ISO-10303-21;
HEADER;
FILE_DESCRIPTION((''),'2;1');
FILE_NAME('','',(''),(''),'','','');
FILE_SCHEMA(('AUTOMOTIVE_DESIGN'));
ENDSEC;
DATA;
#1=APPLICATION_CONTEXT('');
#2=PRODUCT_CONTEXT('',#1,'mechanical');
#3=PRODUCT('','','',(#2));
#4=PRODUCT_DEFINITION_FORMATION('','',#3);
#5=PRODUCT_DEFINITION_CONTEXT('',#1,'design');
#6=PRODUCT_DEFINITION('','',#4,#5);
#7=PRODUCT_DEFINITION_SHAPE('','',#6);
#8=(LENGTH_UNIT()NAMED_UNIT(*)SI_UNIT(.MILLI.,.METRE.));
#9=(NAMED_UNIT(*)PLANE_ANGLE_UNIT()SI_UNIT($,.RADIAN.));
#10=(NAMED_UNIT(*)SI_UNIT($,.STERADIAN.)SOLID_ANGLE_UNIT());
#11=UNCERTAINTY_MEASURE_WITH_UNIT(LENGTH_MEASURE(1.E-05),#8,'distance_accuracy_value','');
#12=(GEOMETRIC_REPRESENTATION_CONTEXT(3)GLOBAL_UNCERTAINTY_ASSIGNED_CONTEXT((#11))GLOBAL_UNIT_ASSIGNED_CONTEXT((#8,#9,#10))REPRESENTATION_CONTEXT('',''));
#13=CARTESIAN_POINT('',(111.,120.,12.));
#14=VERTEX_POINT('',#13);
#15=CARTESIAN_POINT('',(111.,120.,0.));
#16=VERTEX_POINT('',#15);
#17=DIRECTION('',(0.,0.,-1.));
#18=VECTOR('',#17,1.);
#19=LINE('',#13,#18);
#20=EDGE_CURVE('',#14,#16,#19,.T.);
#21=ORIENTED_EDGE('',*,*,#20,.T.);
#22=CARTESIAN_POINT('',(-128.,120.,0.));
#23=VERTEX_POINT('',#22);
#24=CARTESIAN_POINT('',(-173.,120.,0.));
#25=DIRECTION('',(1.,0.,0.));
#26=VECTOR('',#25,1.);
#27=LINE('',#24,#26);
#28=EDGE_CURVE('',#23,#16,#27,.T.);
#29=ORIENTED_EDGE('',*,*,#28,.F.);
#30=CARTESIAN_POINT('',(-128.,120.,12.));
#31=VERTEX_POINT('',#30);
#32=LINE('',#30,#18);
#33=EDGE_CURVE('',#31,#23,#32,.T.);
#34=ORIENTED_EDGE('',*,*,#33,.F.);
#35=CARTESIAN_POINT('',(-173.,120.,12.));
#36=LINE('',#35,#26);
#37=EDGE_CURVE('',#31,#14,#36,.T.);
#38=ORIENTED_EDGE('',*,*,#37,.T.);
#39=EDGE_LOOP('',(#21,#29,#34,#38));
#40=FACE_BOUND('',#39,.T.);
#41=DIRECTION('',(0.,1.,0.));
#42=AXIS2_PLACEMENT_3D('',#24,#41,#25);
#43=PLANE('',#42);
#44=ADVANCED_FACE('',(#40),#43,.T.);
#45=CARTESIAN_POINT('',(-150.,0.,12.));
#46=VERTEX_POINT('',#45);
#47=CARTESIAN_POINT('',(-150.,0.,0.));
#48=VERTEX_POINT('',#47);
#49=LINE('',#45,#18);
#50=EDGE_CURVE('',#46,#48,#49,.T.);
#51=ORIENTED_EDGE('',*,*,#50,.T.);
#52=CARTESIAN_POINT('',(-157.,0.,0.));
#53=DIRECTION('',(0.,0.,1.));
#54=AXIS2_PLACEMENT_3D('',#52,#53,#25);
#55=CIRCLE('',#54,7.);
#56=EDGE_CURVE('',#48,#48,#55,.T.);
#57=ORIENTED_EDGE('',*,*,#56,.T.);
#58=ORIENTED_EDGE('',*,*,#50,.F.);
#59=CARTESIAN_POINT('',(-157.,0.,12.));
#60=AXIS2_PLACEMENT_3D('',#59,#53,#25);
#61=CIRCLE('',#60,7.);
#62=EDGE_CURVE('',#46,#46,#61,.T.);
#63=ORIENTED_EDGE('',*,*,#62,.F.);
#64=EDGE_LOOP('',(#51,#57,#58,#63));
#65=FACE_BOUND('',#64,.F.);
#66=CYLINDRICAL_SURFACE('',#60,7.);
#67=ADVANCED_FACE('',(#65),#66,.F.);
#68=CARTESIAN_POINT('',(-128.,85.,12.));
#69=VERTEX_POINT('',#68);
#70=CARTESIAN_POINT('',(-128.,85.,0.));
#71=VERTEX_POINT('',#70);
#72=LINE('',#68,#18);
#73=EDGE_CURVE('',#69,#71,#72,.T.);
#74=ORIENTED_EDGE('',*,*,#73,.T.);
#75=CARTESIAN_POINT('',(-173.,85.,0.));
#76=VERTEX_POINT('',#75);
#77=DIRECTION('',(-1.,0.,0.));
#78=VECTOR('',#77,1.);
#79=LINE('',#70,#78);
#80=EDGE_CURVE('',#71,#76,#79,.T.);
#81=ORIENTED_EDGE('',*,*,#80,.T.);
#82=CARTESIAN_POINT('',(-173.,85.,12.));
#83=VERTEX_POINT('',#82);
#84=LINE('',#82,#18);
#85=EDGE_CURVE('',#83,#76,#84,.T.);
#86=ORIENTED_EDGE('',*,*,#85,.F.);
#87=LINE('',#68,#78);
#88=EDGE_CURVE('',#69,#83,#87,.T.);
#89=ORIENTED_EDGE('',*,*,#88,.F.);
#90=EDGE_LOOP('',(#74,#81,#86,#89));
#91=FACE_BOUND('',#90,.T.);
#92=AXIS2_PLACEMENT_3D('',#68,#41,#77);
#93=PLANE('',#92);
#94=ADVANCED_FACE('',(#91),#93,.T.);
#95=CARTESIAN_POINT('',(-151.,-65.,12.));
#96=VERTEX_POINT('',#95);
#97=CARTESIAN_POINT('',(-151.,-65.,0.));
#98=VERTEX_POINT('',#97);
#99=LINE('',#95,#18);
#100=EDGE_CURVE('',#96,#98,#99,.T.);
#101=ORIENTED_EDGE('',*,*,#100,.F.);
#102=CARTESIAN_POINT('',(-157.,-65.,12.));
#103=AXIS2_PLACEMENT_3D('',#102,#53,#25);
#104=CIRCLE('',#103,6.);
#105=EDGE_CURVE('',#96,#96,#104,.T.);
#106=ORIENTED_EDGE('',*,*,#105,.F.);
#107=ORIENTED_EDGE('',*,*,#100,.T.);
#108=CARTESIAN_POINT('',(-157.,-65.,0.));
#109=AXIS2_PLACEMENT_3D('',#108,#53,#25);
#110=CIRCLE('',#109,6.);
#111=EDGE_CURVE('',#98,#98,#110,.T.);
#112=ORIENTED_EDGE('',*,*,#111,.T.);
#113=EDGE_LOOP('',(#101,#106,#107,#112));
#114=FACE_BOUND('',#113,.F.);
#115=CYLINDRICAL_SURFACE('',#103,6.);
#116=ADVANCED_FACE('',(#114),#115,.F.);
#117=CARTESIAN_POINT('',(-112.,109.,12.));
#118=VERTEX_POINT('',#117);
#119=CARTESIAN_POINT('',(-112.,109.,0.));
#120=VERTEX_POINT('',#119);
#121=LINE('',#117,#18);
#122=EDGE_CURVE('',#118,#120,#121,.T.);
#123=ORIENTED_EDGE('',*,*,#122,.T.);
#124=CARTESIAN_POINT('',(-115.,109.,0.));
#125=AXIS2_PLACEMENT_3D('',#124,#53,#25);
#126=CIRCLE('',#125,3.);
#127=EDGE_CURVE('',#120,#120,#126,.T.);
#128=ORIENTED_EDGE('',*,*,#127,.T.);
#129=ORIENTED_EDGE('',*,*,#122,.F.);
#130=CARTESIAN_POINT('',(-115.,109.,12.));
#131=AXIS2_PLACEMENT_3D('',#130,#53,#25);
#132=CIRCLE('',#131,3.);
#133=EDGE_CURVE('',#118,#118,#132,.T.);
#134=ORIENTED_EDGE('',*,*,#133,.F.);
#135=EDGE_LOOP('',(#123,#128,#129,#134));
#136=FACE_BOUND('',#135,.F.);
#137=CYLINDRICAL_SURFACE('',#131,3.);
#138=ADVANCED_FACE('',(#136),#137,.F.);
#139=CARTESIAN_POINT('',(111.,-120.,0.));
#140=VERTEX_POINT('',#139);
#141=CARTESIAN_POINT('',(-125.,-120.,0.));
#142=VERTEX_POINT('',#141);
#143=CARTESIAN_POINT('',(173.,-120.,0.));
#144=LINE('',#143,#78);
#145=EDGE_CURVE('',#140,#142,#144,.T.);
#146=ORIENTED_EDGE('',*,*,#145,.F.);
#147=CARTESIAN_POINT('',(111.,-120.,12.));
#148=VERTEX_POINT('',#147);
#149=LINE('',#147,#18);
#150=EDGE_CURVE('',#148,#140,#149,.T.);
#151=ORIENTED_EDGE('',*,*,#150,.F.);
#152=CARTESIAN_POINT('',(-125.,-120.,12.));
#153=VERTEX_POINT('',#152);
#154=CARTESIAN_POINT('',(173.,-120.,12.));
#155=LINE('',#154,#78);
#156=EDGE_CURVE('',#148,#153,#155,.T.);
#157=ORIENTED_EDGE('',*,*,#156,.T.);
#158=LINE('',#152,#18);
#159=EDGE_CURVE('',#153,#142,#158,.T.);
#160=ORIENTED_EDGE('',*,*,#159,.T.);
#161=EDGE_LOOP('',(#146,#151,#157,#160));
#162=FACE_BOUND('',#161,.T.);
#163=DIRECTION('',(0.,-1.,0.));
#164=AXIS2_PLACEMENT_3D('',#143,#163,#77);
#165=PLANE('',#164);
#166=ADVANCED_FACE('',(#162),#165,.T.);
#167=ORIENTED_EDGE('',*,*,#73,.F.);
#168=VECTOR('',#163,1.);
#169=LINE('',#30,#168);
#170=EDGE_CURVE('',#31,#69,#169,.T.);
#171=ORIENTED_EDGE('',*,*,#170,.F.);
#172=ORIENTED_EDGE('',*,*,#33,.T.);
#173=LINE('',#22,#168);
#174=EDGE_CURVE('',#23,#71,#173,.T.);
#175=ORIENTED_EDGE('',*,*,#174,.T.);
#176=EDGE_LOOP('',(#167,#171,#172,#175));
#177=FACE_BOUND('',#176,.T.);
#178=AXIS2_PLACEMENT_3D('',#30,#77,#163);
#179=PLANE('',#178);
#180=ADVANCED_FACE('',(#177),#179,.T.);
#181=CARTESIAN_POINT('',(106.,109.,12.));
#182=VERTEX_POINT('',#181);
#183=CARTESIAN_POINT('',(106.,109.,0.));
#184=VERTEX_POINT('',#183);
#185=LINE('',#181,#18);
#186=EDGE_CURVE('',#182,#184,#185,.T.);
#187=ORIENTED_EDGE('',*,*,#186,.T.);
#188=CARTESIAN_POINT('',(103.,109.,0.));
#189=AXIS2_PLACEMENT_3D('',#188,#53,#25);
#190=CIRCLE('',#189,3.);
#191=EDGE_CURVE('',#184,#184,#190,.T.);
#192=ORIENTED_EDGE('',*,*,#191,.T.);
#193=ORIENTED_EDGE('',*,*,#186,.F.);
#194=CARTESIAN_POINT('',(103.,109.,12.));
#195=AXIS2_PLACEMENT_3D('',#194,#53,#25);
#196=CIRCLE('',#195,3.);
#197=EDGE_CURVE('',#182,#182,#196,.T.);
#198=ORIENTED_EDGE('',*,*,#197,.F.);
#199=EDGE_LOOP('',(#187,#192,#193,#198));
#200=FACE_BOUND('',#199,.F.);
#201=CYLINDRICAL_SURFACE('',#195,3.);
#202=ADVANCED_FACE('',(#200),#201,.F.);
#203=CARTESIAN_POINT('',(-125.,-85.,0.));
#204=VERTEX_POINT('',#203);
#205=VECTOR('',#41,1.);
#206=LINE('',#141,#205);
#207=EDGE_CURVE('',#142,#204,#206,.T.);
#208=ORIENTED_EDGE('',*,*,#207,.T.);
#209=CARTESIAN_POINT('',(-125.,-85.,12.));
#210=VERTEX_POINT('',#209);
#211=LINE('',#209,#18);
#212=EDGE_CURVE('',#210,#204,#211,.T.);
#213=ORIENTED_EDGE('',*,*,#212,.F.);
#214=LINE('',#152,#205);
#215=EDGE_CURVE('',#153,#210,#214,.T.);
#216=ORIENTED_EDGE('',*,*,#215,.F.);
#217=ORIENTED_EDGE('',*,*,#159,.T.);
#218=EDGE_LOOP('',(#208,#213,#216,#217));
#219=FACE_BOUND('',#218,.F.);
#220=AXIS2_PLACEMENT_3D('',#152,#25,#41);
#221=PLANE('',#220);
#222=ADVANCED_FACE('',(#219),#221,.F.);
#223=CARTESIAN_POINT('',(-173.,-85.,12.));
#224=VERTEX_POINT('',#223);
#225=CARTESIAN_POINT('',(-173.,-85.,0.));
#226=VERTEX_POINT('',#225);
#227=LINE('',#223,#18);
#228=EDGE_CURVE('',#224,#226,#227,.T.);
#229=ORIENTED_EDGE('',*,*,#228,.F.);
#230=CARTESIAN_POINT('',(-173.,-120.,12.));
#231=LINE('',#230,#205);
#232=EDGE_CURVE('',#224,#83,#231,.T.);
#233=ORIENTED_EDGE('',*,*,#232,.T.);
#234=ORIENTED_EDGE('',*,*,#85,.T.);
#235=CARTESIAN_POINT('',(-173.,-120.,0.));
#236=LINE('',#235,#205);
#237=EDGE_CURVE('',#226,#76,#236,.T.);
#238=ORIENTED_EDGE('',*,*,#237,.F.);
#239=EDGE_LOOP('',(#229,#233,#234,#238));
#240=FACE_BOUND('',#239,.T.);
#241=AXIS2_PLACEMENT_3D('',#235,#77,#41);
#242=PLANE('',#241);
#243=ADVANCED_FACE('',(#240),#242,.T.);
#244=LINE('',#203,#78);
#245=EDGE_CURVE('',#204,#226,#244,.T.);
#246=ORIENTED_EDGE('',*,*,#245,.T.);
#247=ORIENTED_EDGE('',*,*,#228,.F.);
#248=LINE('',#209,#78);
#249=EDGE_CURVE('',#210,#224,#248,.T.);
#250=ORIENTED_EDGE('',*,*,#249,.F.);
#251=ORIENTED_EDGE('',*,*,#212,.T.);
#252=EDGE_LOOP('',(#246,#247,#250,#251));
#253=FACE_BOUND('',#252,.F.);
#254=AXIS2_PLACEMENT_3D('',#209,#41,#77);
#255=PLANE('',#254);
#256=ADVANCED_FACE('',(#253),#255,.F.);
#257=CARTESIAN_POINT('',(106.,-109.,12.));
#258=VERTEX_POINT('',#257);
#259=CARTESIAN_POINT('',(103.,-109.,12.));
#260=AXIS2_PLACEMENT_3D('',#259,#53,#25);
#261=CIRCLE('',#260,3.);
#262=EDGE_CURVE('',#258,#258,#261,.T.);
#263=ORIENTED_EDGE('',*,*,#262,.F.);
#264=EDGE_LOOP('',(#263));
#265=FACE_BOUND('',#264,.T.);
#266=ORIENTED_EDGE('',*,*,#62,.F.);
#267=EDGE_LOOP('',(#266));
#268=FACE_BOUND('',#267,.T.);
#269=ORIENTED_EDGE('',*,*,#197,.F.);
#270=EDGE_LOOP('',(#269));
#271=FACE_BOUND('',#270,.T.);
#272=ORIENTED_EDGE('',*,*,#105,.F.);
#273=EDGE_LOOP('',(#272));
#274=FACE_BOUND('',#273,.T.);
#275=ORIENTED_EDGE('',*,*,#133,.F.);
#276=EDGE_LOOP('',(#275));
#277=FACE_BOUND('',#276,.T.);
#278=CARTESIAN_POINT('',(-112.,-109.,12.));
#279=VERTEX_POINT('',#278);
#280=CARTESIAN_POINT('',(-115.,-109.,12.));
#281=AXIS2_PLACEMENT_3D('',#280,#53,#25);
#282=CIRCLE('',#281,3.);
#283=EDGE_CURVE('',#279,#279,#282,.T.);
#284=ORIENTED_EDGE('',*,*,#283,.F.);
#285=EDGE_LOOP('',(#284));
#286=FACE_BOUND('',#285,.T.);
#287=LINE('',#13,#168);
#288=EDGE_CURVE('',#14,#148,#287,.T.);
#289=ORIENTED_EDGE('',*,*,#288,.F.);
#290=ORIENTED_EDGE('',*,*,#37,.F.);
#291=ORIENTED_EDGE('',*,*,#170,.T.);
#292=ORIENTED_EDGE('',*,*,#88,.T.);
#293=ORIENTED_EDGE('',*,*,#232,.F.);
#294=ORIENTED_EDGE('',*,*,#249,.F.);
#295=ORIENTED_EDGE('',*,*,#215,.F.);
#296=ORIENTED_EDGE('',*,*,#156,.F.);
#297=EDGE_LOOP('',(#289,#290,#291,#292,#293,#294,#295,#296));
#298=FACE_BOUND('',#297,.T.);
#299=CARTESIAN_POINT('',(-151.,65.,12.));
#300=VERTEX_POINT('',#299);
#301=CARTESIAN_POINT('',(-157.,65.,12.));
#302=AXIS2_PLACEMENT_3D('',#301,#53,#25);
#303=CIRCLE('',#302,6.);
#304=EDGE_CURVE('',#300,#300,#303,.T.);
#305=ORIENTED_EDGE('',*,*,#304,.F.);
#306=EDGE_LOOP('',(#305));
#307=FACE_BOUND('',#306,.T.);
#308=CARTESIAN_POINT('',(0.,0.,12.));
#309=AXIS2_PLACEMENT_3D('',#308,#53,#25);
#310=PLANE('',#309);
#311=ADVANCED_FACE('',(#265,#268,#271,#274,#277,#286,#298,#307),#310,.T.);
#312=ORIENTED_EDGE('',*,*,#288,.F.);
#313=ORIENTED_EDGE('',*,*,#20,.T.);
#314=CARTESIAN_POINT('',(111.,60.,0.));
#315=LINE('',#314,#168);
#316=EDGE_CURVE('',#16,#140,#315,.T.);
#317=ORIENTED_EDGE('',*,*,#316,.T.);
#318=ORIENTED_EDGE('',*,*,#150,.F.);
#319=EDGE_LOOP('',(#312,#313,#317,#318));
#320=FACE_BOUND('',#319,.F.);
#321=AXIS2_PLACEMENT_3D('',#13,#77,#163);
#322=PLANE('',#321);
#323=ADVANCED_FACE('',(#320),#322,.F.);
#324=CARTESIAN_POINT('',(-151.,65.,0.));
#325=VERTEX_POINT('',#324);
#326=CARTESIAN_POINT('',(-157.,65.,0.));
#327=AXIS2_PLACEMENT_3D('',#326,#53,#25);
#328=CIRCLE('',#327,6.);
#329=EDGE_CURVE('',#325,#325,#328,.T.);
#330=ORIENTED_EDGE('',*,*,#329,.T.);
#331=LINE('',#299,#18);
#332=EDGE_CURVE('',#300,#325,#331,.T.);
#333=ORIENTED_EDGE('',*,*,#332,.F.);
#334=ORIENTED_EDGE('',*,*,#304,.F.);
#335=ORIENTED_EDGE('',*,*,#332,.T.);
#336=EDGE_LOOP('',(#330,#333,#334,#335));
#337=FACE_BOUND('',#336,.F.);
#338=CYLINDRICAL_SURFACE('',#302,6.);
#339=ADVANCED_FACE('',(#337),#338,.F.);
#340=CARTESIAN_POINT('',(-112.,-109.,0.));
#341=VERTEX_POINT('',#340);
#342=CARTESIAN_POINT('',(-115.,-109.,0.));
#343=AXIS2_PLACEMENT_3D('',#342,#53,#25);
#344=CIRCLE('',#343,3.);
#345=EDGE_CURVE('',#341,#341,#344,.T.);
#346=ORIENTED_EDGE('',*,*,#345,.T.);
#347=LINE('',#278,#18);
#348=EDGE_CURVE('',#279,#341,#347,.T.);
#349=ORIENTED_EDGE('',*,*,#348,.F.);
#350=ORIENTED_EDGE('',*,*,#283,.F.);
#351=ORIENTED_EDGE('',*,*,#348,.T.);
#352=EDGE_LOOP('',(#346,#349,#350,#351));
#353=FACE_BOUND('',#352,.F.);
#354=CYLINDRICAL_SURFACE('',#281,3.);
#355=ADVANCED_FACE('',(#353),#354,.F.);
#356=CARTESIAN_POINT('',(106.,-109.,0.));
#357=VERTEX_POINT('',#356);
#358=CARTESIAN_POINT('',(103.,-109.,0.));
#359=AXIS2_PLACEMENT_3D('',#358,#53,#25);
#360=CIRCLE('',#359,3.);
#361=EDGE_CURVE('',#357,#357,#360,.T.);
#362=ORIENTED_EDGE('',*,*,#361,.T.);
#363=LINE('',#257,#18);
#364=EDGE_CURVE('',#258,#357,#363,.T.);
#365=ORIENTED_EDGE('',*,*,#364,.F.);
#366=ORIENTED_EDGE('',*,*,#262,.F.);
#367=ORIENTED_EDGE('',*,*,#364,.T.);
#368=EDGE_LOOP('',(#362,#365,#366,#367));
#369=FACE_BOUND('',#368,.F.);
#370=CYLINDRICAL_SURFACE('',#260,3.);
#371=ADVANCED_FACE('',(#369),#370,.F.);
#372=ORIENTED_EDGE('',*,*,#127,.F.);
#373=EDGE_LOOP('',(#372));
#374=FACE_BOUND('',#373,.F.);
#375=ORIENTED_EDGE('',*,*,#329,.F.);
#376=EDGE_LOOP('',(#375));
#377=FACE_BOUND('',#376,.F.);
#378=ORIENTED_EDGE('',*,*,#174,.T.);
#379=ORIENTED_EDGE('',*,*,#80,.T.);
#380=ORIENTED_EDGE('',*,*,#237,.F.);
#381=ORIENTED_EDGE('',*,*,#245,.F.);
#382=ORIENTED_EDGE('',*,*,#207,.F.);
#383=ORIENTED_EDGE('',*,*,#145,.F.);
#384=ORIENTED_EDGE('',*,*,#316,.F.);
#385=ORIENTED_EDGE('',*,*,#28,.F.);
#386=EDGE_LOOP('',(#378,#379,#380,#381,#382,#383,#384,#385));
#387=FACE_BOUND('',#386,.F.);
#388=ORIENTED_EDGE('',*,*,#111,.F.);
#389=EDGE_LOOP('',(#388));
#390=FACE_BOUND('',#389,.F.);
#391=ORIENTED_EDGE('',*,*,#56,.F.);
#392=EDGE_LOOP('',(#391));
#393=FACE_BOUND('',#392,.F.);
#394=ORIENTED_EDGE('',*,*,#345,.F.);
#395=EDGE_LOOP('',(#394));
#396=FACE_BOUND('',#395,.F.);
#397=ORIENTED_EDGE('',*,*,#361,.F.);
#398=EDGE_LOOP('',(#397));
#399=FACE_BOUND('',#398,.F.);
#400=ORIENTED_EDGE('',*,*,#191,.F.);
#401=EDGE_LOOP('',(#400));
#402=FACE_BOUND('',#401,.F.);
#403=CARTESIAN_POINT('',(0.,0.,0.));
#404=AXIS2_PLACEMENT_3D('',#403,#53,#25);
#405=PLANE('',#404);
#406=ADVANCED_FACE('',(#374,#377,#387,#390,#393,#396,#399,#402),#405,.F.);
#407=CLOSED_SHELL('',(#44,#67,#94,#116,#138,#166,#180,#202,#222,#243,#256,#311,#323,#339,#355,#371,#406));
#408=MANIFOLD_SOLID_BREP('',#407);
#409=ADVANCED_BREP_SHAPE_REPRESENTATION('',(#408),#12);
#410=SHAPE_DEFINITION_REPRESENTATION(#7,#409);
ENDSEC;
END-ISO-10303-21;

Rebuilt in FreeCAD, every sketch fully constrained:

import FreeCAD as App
import Part
import Sketcher

V = App.Vector
Q = App.Units.Quantity

doc = App.newDocument("Part")
body = doc.addObject("PartDesign::Body", "Body")

# Sketch on XY plane
sketch1 = doc.addObject("Sketcher::SketchObject", "Sketch")
body.addObject(sketch1)
sketch1.AttachmentSupport = (doc.XY_Plane, [""])
sketch1.MapMode = "FlatFace"
sketch1.addGeometry([
    Part.LineSegment(V(173, 120, 0), V(-173, 120, 0)),
    Part.LineSegment(V(-173, 120, 0), V(-173, -120, 0)),
    Part.LineSegment(V(-173, -120, 0), V(173, -120, 0)),
    Part.LineSegment(V(173, -120, 0), V(173, 120, 0)),
], False)
sketch1.addConstraint([
    Sketcher.Constraint("Coincident", 0, 2, 1, 1),
    Sketcher.Constraint("Coincident", 1, 2, 2, 1),
    Sketcher.Constraint("Coincident", 2, 2, 3, 1),
    Sketcher.Constraint("Coincident", 3, 2, 0, 1),
    Sketcher.Constraint("Horizontal", 0),
    Sketcher.Constraint("Vertical", 1),
    Sketcher.Constraint("Horizontal", 2),
    Sketcher.Constraint("Vertical", 3),
    Sketcher.Constraint("Symmetric", 0, 2, 2, 2, -1, 1),
    Sketcher.Constraint("DistanceX", 0, 2, 0, 1, Q("346 mm")),
    Sketcher.Constraint("DistanceY", 1, 2, 1, 1, Q("240 mm")),
])
pad1 = doc.addObject("PartDesign::Pad", "Pad")
body.addObject(pad1)
pad1.Profile = sketch1
pad1.Length = 12

# Sketch on XY plane
sketch2 = doc.addObject("Sketcher::SketchObject", "Sketch001")
body.addObject(sketch2)
sketch2.AttachmentSupport = (doc.XY_Plane, [""])
sketch2.MapMode = "FlatFace"
sketch2.AttachmentOffset = App.Placement(V(0, 0, 12), App.Rotation())
sketch2.addGeometry([
    Part.Circle(V(-115, 109, 0), V(0, 0, 1), 3),  # 0
    Part.Circle(V(103, 109, 0), V(0, 0, 1), 3),  # 1
    Part.Circle(V(-115, -109, 0), V(0, 0, 1), 3),  # 2
    Part.Circle(V(103, -109, 0), V(0, 0, 1), 3),  # 3
    Part.Circle(V(-157, 65, 0), V(0, 0, 1), 6),  # 4
    Part.Circle(V(-157, 0, 0), V(0, 0, 1), 7),  # 5
    Part.Circle(V(-157, -65, 0), V(0, 0, 1), 6),  # 6
], False)
sketch2.addConstraint([
    Sketcher.Constraint("Equal", 0, 1),
    Sketcher.Constraint("Equal", 1, 2),
    Sketcher.Constraint("Equal", 2, 3),
    Sketcher.Constraint("Equal", 4, 6),
    Sketcher.Constraint("Symmetric", 0, 3, 2, 3, -1),
    Sketcher.Constraint("Symmetric", 1, 3, 3, 3, -1),
    Sketcher.Constraint("Symmetric", 4, 3, 6, 3, -1),
    Sketcher.Constraint("PointOnObject", 5, 3, -1),
    Sketcher.Constraint("Horizontal", 0, 3, 1, 3),
    Sketcher.Constraint("Vertical", 4, 3, 5, 3),
    Sketcher.Constraint("Diameter", 0, Q("6 mm")),
    Sketcher.Constraint("Diameter", 4, Q("12 mm")),
    Sketcher.Constraint("Diameter", 5, Q("14 mm")),
    Sketcher.Constraint("DistanceX", 0, 3, -1, 1, Q("115 mm")),
    Sketcher.Constraint("DistanceY", -1, 1, 0, 3, Q("109 mm")),
    Sketcher.Constraint("DistanceX", 4, 3, -1, 1, Q("157 mm")),
    Sketcher.Constraint("DistanceY", -1, 1, 4, 3, Q("65 mm")),
    Sketcher.Constraint("DistanceX", 0, 3, 1, 3, Q("218 mm")),
])
pocket1 = doc.addObject("PartDesign::Pocket", "Pocket")
body.addObject(pocket1)
pocket1.Profile = sketch2
pocket1.Length = 14

# Sketch on XY plane
sketch3 = doc.addObject("Sketcher::SketchObject", "Sketch002")
body.addObject(sketch3)
sketch3.AttachmentSupport = (doc.XY_Plane, [""])
sketch3.MapMode = "FlatFace"
sketch3.AttachmentOffset = App.Placement(V(0, 0, 12), App.Rotation())
sketch3.addGeometry([
    Part.LineSegment(V(111, 120, 0), V(111, -120, 0)),
    Part.LineSegment(V(111, -120, 0), V(173, -120, 0)),
    Part.LineSegment(V(173, -120, 0), V(173, 120, 0)),
    Part.LineSegment(V(173, 120, 0), V(111, 120, 0)),
], False)
sketch3.addConstraint([
    Sketcher.Constraint("Coincident", 0, 2, 1, 1),
    Sketcher.Constraint("Coincident", 1, 2, 2, 1),
    Sketcher.Constraint("Coincident", 2, 2, 3, 1),
    Sketcher.Constraint("Coincident", 3, 2, 0, 1),
    Sketcher.Constraint("Vertical", 0),
    Sketcher.Constraint("Horizontal", 1),
    Sketcher.Constraint("Vertical", 2),
    Sketcher.Constraint("Horizontal", 3),
    Sketcher.Constraint("DistanceX", 1, 1, 1, 2, Q("62 mm")),
    Sketcher.Constraint("DistanceY", 0, 2, 0, 1, Q("240 mm")),
    Sketcher.Constraint("DistanceX", -1, 1, 0, 2, Q("111 mm")),
    Sketcher.Constraint("DistanceY", 0, 2, -1, 1, Q("120 mm")),
])
pocket2 = doc.addObject("PartDesign::Pocket", "Pocket001")
body.addObject(pocket2)
pocket2.Profile = sketch3
pocket2.Length = 16

# Sketch on XY plane
sketch4 = doc.addObject("Sketcher::SketchObject", "Sketch003")
body.addObject(sketch4)
sketch4.AttachmentSupport = (doc.XY_Plane, [""])
sketch4.MapMode = "FlatFace"
sketch4.AttachmentOffset = App.Placement(V(0, 0, 12), App.Rotation())
sketch4.addGeometry([
    Part.LineSegment(V(-173, 120, 0), V(-173, 85, 0)),  # 0
    Part.LineSegment(V(-173, 85, 0), V(-128, 85, 0)),  # 1
    Part.LineSegment(V(-128, 85, 0), V(-128, 120, 0)),  # 2
    Part.LineSegment(V(-128, 120, 0), V(-173, 120, 0)),  # 3
    Part.LineSegment(V(-173, -85, 0), V(-173, -120, 0)),  # 4
    Part.LineSegment(V(-173, -120, 0), V(-125, -120, 0)),  # 5
    Part.LineSegment(V(-125, -120, 0), V(-125, -85, 0)),  # 6
    Part.LineSegment(V(-125, -85, 0), V(-173, -85, 0)),  # 7
], False)
sketch4.addConstraint([
    Sketcher.Constraint("Coincident", 0, 2, 1, 1),
    Sketcher.Constraint("Coincident", 1, 2, 2, 1),
    Sketcher.Constraint("Coincident", 2, 2, 3, 1),
    Sketcher.Constraint("Coincident", 3, 2, 0, 1),
    Sketcher.Constraint("Coincident", 4, 2, 5, 1),
    Sketcher.Constraint("Coincident", 5, 2, 6, 1),
    Sketcher.Constraint("Coincident", 6, 2, 7, 1),
    Sketcher.Constraint("Coincident", 7, 2, 4, 1),
    Sketcher.Constraint("Vertical", 0),
    Sketcher.Constraint("Horizontal", 1),
    Sketcher.Constraint("Vertical", 2),
    Sketcher.Constraint("Horizontal", 3),
    Sketcher.Constraint("Vertical", 4),
    Sketcher.Constraint("Horizontal", 5),
    Sketcher.Constraint("Vertical", 6),
    Sketcher.Constraint("Horizontal", 7),
    Sketcher.Constraint("Symmetric", 3, 2, 4, 2, -1),
    Sketcher.Constraint("Equal", 2, 4),
    Sketcher.Constraint("DistanceX", 1, 1, 1, 2, Q("45 mm")),
    Sketcher.Constraint("DistanceX", 5, 1, 5, 2, Q("48 mm")),
    Sketcher.Constraint("DistanceY", 0, 2, 0, 1, Q("35 mm")),
    Sketcher.Constraint("DistanceX", 0, 2, -1, 1, Q("173 mm")),
    Sketcher.Constraint("DistanceY", -1, 1, 0, 2, Q("85 mm")),
])
pocket3 = doc.addObject("PartDesign::Pocket", "Pocket002")
body.addObject(pocket3)
pocket3.Profile = sketch4
pocket3.Length = 12

doc.recompute()
